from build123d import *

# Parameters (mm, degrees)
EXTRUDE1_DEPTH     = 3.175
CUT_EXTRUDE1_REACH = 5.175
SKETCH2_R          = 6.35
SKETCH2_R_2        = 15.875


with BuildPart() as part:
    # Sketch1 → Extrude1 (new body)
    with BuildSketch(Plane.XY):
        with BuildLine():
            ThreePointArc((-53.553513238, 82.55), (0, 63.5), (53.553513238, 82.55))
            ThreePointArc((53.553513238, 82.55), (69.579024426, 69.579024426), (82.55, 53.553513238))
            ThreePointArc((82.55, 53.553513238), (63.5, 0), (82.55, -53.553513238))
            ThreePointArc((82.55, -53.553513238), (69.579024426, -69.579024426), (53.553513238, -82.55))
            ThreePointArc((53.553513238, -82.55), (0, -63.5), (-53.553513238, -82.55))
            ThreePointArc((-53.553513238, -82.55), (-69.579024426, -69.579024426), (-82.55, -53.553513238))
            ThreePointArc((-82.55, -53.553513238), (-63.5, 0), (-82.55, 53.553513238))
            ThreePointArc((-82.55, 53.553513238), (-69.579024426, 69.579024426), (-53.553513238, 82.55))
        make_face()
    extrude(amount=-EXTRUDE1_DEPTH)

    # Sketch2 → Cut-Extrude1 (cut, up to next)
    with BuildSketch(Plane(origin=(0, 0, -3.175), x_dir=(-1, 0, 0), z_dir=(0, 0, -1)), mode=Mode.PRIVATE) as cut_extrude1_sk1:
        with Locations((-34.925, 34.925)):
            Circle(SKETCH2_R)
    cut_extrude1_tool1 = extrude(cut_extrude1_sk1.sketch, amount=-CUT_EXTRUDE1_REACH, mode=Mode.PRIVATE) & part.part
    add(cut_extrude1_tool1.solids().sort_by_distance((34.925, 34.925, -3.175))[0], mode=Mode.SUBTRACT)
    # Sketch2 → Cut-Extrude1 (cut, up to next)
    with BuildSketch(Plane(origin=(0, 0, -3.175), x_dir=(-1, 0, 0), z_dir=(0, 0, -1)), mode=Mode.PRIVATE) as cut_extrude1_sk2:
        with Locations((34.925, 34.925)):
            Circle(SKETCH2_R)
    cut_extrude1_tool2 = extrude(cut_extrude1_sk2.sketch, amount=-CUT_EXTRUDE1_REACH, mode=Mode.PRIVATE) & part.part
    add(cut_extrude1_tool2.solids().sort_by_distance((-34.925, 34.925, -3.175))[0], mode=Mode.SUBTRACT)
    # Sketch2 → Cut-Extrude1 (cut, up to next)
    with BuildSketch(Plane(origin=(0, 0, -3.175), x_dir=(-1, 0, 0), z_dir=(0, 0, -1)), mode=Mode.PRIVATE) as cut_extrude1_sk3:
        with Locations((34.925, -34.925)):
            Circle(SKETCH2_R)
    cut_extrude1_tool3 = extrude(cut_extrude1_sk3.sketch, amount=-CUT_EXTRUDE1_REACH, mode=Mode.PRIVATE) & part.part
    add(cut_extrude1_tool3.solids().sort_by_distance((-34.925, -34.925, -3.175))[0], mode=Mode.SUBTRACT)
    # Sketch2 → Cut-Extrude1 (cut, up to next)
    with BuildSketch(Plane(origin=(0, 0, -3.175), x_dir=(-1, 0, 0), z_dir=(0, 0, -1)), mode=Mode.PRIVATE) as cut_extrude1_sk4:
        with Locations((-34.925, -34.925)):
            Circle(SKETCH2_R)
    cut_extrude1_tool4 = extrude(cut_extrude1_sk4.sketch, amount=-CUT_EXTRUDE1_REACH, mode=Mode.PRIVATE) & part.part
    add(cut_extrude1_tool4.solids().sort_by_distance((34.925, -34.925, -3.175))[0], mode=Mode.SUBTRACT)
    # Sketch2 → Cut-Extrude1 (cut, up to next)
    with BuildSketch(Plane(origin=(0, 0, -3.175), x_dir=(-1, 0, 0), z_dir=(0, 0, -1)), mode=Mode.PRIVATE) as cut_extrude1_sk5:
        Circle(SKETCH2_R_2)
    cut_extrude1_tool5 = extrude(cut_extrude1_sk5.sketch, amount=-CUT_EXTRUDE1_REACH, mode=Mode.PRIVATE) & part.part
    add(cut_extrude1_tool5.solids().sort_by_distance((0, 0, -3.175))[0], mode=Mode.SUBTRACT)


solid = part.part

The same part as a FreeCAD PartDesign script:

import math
import FreeCAD as App
import Part
import Sketcher
from FreeCAD import Vector
Q = App.Units.Quantity

doc = App.newDocument("Part")
body = doc.addObject("PartDesign::Body", "Body")

# Sketch on XY plane
sketch1 = body.newObject("Sketcher::SketchObject", "Sketch")
sketch1.AttachmentSupport = (doc.getObject("XY_Plane"), [""])
sketch1.MapMode = "FlatFace"
sketch1.addGeometry([
    Part.ArcOfCircle(Part.Circle(Vector(0, 148, 0), Vector(0, 0, 1), 85), math.radians(-129), math.radians(-51)),  # 0
    Part.ArcOfCircle(Part.Circle(Vector(0, 0, 0), Vector(0, 0, 1), 98), math.radians(123), math.radians(147)),  # 1
    Part.ArcOfCircle(Part.Circle(Vector(-148, 0, 0), Vector(0, 0, 1), 85), math.radians(-39), math.radians(39)),  # 2
    Part.ArcOfCircle(Part.Circle(Vector(0, 0, 0), Vector(0, 0, 1), 98), math.radians(-147), math.radians(-123)),  # 3
    Part.ArcOfCircle(Part.Circle(Vector(0, -148, 0), Vector(0, 0, 1), 85), math.radians(51), math.radians(129)),  # 4
    Part.ArcOfCircle(Part.Circle(Vector(0, 0, 0), Vector(0, 0, 1), 98), math.radians(-57), math.radians(-33)),  # 5
    Part.ArcOfCircle(Part.Circle(Vector(148, 0, 0), Vector(0, 0, 1), 85), math.radians(141), math.radians(219)),  # 6
    Part.ArcOfCircle(Part.Circle(Vector(0, 0, 0), Vector(0, 0, 1), 98), math.radians(33), math.radians(57)),  # 7
], False)
sketch1.addConstraint([
    Sketcher.Constraint("Coincident", 0, 1, 1, 1),
    Sketcher.Constraint("Coincident", 1, 2, 2, 2),
    Sketcher.Constraint("Coincident", 2, 1, 3, 1),
    Sketcher.Constraint("Coincident", 3, 2, 4, 2),
    Sketcher.Constraint("Coincident", 4, 1, 5, 1),
    Sketcher.Constraint("Coincident", 5, 2, 6, 2),
    Sketcher.Constraint("Coincident", 6, 1, 7, 1),
    Sketcher.Constraint("Coincident", 7, 2, 0, 2),
    Sketcher.Constraint("Coincident", 1, 3, -1, 1),
    Sketcher.Constraint("Coincident", 3, 3, -1, 1),
    Sketcher.Constraint("Coincident", 5, 3, -1, 1),
    Sketcher.Constraint("Coincident", 7, 3, -1, 1),
    Sketcher.Constraint("Equal", 0, 2),
    Sketcher.Constraint("Equal", 1, 3),
    Sketcher.Constraint("Equal", 2, 4),
    Sketcher.Constraint("Equal", 3, 5),
    Sketcher.Constraint("Equal", 4, 6),
    Sketcher.Constraint("Equal", 5, 7),
    Sketcher.Constraint("Symmetric", 0, 3, 4, 3, -1, 1),
    Sketcher.Constraint("Symmetric", 2, 3, 6, 3, -1, 1),
    Sketcher.Constraint("PointOnObject", 0, 3, -2),
    Sketcher.Constraint("PointOnObject", 2, 3, -1),
    Sketcher.Constraint("Radius", 1, Q("3.874 in")),
    Sketcher.Constraint("DistanceY", -1, 1, 0, 1, Q("3.25 in")),
    Sketcher.Constraint("DistanceX", 1, 2, -1, 1, Q("3.25 in")),
    Sketcher.Constraint("Radius", 0, Q("84.800034 mm")),
])
pad1 = body.newObject("PartDesign::Pad", "Pad")
pad1.Profile = sketch1
pad1.Length = Q("0.125 in")
pad1.Reversed = True

# Sketch on XY plane
sketch2 = body.newObject("Sketcher::SketchObject", "Sketch001")
sketch2.AttachmentSupport = (doc.getObject("XY_Plane"), [""])
sketch2.MapMode = "FlatFace"
sketch2.AttachmentOffset = App.Placement(Vector(0, 0, -0.125 * 25.4), App.Rotation())
sketch2.addGeometry(Part.Circle(Vector(35, 35, 0), Vector(0, 0, 1), 6), False)
sketch2.addConstraint([
    Sketcher.Constraint("Diameter", 0, Q("0.5 in")),
    Sketcher.Constraint("DistanceX", -1, 1, 0, 3, Q("1.375 in")),
    Sketcher.Constraint("DistanceY", -1, 1, 0, 3, Q("1.375 in")),
])
pocket1 = body.newObject("PartDesign::Pocket", "Pocket")
pocket1.Profile = sketch2
pocket1.Type = "UpToFirst"
pocket1.Reversed = True

# Sketch on XY plane
sketch3 = body.newObject("Sketcher::SketchObject", "Sketch002")
sketch3.AttachmentSupport = (doc.getObject("XY_Plane"), [""])
sketch3.MapMode = "FlatFace"
sketch3.AttachmentOffset = App.Placement(Vector(0, 0, -0.125 * 25.4), App.Rotation())
sketch3.addGeometry(Part.Circle(Vector(-35, 35, 0), Vector(0, 0, 1), 6), False)
sketch3.addConstraint([
    Sketcher.Constraint("Diameter", 0, Q("0.5 in")),
    Sketcher.Constraint("DistanceX", 0, 3, -1, 1, Q("1.375 in")),
    Sketcher.Constraint("DistanceY", -1, 1, 0, 3, Q("1.375 in")),
])
pocket2 = body.newObject("PartDesign::Pocket", "Pocket001")
pocket2.Profile = sketch3
pocket2.Type = "UpToFirst"
pocket2.Reversed = True

# Sketch on XY plane
sketch4 = body.newObject("Sketcher::SketchObject", "Sketch003")
sketch4.AttachmentSupport = (doc.getObject("XY_Plane"), [""])
sketch4.MapMode = "FlatFace"
sketch4.AttachmentOffset = App.Placement(Vector(0, 0, -0.125 * 25.4), App.Rotation())
sketch4.addGeometry(Part.Circle(Vector(-35, -35, 0), Vector(0, 0, 1), 6), False)
sketch4.addConstraint([
    Sketcher.Constraint("Diameter", 0, Q("0.5 in")),
    Sketcher.Constraint("DistanceX", 0, 3, -1, 1, Q("1.375 in")),
    Sketcher.Constraint("DistanceY", 0, 3, -1, 1, Q("1.375 in")),
])
pocket3 = body.newObject("PartDesign::Pocket", "Pocket002")
pocket3.Profile = sketch4
pocket3.Type = "UpToFirst"
pocket3.Reversed = True

# Sketch on XY plane
sketch5 = body.newObject("Sketcher::SketchObject", "Sketch004")
sketch5.AttachmentSupport = (doc.getObject("XY_Plane"), [""])
sketch5.MapMode = "FlatFace"
sketch5.AttachmentOffset = App.Placement(Vector(0, 0, -0.125 * 25.4), App.Rotation())
sketch5.addGeometry(Part.Circle(Vector(35, -35, 0), Vector(0, 0, 1), 6), False)
sketch5.addConstraint([
    Sketcher.Constraint("Diameter", 0, Q("0.5 in")),
    Sketcher.Constraint("DistanceX", -1, 1, 0, 3, Q("1.375 in")),
    Sketcher.Constraint("DistanceY", 0, 3, -1, 1, Q("1.375 in")),
])
pocket4 = body.newObject("PartDesign::Pocket", "Pocket003")
pocket4.Profile = sketch5
pocket4.Type = "UpToFirst"
pocket4.Reversed = True

# Sketch on XY plane
sketch6 = body.newObject("Sketcher::SketchObject", "Sketch005")
sketch6.AttachmentSupport = (doc.getObject("XY_Plane"), [""])
sketch6.MapMode = "FlatFace"
sketch6.AttachmentOffset = App.Placement(Vector(0, 0, -0.125 * 25.4), App.Rotation())
sketch6.addGeometry(Part.Circle(Vector(0, 0, 0), Vector(0, 0, 1), 16), False)
sketch6.addConstraint([
    Sketcher.Constraint("Coincident", 0, 3, -1, 1),
    Sketcher.Constraint("Diameter", 0, Q("1.25 in")),
])
pocket5 = body.newObject("PartDesign::Pocket", "Pocket004")
pocket5.Profile = sketch6
pocket5.Type = "UpToFirst"
pocket5.Reversed = True

doc.recompute()
